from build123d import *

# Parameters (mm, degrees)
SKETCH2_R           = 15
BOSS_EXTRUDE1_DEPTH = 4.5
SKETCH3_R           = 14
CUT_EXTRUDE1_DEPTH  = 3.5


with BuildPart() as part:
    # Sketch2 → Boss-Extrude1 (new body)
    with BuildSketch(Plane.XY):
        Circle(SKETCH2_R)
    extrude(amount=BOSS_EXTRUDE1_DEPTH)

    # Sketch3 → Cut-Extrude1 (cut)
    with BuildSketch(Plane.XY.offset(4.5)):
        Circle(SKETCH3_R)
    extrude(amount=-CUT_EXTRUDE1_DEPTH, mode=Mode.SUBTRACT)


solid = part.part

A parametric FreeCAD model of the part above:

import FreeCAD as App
import Part
import Sketcher
from FreeCAD import Vector
Q = App.Units.Quantity

doc = App.newDocument("Part")
body = doc.addObject("PartDesign::Body", "Body")

sketch1 = doc.addObject("Sketcher::SketchObject", "Sketch")
body.addObject(sketch1)
sketch1.AttachmentSupport = (doc.XY_Plane, [""])
sketch1.MapMode = "FlatFace"
sketch1.addGeometry(Part.Circle(Vector(0, 0, 0), Vector(0, 0, 1), 15), False)
sketch1.addConstraint([
    Sketcher.Constraint("Coincident", 0, 3, -1, 1),
    Sketcher.Constraint("Diameter", 0, Q("30 mm")),
])
pad1 = doc.addObject("PartDesign::Pad", "Pad")
body.addObject(pad1)
pad1.Profile = sketch1
pad1.Length = 4.5

sketch2 = doc.addObject("Sketcher::SketchObject", "Sketch001")
body.addObject(sketch2)
sketch2.AttachmentSupport = (doc.XY_Plane, [""])
sketch2.MapMode = "FlatFace"
sketch2.AttachmentOffset = App.Placement(Vector(0, 0, 4.5), App.Rotation())
sketch2.addGeometry(Part.Circle(Vector(0, 0, 0), Vector(0, 0, 1), 14), False)
sketch2.addConstraint([
    Sketcher.Constraint("Coincident", 0, 3, -1, 1),
    Sketcher.Constraint("Diameter", 0, Q("28 mm")),
])
pocket1 = doc.addObject("PartDesign::Pocket", "Pocket")
body.addObject(pocket1)
pocket1.Profile = sketch2
pocket1.Length = 3.5

doc.recompute()
